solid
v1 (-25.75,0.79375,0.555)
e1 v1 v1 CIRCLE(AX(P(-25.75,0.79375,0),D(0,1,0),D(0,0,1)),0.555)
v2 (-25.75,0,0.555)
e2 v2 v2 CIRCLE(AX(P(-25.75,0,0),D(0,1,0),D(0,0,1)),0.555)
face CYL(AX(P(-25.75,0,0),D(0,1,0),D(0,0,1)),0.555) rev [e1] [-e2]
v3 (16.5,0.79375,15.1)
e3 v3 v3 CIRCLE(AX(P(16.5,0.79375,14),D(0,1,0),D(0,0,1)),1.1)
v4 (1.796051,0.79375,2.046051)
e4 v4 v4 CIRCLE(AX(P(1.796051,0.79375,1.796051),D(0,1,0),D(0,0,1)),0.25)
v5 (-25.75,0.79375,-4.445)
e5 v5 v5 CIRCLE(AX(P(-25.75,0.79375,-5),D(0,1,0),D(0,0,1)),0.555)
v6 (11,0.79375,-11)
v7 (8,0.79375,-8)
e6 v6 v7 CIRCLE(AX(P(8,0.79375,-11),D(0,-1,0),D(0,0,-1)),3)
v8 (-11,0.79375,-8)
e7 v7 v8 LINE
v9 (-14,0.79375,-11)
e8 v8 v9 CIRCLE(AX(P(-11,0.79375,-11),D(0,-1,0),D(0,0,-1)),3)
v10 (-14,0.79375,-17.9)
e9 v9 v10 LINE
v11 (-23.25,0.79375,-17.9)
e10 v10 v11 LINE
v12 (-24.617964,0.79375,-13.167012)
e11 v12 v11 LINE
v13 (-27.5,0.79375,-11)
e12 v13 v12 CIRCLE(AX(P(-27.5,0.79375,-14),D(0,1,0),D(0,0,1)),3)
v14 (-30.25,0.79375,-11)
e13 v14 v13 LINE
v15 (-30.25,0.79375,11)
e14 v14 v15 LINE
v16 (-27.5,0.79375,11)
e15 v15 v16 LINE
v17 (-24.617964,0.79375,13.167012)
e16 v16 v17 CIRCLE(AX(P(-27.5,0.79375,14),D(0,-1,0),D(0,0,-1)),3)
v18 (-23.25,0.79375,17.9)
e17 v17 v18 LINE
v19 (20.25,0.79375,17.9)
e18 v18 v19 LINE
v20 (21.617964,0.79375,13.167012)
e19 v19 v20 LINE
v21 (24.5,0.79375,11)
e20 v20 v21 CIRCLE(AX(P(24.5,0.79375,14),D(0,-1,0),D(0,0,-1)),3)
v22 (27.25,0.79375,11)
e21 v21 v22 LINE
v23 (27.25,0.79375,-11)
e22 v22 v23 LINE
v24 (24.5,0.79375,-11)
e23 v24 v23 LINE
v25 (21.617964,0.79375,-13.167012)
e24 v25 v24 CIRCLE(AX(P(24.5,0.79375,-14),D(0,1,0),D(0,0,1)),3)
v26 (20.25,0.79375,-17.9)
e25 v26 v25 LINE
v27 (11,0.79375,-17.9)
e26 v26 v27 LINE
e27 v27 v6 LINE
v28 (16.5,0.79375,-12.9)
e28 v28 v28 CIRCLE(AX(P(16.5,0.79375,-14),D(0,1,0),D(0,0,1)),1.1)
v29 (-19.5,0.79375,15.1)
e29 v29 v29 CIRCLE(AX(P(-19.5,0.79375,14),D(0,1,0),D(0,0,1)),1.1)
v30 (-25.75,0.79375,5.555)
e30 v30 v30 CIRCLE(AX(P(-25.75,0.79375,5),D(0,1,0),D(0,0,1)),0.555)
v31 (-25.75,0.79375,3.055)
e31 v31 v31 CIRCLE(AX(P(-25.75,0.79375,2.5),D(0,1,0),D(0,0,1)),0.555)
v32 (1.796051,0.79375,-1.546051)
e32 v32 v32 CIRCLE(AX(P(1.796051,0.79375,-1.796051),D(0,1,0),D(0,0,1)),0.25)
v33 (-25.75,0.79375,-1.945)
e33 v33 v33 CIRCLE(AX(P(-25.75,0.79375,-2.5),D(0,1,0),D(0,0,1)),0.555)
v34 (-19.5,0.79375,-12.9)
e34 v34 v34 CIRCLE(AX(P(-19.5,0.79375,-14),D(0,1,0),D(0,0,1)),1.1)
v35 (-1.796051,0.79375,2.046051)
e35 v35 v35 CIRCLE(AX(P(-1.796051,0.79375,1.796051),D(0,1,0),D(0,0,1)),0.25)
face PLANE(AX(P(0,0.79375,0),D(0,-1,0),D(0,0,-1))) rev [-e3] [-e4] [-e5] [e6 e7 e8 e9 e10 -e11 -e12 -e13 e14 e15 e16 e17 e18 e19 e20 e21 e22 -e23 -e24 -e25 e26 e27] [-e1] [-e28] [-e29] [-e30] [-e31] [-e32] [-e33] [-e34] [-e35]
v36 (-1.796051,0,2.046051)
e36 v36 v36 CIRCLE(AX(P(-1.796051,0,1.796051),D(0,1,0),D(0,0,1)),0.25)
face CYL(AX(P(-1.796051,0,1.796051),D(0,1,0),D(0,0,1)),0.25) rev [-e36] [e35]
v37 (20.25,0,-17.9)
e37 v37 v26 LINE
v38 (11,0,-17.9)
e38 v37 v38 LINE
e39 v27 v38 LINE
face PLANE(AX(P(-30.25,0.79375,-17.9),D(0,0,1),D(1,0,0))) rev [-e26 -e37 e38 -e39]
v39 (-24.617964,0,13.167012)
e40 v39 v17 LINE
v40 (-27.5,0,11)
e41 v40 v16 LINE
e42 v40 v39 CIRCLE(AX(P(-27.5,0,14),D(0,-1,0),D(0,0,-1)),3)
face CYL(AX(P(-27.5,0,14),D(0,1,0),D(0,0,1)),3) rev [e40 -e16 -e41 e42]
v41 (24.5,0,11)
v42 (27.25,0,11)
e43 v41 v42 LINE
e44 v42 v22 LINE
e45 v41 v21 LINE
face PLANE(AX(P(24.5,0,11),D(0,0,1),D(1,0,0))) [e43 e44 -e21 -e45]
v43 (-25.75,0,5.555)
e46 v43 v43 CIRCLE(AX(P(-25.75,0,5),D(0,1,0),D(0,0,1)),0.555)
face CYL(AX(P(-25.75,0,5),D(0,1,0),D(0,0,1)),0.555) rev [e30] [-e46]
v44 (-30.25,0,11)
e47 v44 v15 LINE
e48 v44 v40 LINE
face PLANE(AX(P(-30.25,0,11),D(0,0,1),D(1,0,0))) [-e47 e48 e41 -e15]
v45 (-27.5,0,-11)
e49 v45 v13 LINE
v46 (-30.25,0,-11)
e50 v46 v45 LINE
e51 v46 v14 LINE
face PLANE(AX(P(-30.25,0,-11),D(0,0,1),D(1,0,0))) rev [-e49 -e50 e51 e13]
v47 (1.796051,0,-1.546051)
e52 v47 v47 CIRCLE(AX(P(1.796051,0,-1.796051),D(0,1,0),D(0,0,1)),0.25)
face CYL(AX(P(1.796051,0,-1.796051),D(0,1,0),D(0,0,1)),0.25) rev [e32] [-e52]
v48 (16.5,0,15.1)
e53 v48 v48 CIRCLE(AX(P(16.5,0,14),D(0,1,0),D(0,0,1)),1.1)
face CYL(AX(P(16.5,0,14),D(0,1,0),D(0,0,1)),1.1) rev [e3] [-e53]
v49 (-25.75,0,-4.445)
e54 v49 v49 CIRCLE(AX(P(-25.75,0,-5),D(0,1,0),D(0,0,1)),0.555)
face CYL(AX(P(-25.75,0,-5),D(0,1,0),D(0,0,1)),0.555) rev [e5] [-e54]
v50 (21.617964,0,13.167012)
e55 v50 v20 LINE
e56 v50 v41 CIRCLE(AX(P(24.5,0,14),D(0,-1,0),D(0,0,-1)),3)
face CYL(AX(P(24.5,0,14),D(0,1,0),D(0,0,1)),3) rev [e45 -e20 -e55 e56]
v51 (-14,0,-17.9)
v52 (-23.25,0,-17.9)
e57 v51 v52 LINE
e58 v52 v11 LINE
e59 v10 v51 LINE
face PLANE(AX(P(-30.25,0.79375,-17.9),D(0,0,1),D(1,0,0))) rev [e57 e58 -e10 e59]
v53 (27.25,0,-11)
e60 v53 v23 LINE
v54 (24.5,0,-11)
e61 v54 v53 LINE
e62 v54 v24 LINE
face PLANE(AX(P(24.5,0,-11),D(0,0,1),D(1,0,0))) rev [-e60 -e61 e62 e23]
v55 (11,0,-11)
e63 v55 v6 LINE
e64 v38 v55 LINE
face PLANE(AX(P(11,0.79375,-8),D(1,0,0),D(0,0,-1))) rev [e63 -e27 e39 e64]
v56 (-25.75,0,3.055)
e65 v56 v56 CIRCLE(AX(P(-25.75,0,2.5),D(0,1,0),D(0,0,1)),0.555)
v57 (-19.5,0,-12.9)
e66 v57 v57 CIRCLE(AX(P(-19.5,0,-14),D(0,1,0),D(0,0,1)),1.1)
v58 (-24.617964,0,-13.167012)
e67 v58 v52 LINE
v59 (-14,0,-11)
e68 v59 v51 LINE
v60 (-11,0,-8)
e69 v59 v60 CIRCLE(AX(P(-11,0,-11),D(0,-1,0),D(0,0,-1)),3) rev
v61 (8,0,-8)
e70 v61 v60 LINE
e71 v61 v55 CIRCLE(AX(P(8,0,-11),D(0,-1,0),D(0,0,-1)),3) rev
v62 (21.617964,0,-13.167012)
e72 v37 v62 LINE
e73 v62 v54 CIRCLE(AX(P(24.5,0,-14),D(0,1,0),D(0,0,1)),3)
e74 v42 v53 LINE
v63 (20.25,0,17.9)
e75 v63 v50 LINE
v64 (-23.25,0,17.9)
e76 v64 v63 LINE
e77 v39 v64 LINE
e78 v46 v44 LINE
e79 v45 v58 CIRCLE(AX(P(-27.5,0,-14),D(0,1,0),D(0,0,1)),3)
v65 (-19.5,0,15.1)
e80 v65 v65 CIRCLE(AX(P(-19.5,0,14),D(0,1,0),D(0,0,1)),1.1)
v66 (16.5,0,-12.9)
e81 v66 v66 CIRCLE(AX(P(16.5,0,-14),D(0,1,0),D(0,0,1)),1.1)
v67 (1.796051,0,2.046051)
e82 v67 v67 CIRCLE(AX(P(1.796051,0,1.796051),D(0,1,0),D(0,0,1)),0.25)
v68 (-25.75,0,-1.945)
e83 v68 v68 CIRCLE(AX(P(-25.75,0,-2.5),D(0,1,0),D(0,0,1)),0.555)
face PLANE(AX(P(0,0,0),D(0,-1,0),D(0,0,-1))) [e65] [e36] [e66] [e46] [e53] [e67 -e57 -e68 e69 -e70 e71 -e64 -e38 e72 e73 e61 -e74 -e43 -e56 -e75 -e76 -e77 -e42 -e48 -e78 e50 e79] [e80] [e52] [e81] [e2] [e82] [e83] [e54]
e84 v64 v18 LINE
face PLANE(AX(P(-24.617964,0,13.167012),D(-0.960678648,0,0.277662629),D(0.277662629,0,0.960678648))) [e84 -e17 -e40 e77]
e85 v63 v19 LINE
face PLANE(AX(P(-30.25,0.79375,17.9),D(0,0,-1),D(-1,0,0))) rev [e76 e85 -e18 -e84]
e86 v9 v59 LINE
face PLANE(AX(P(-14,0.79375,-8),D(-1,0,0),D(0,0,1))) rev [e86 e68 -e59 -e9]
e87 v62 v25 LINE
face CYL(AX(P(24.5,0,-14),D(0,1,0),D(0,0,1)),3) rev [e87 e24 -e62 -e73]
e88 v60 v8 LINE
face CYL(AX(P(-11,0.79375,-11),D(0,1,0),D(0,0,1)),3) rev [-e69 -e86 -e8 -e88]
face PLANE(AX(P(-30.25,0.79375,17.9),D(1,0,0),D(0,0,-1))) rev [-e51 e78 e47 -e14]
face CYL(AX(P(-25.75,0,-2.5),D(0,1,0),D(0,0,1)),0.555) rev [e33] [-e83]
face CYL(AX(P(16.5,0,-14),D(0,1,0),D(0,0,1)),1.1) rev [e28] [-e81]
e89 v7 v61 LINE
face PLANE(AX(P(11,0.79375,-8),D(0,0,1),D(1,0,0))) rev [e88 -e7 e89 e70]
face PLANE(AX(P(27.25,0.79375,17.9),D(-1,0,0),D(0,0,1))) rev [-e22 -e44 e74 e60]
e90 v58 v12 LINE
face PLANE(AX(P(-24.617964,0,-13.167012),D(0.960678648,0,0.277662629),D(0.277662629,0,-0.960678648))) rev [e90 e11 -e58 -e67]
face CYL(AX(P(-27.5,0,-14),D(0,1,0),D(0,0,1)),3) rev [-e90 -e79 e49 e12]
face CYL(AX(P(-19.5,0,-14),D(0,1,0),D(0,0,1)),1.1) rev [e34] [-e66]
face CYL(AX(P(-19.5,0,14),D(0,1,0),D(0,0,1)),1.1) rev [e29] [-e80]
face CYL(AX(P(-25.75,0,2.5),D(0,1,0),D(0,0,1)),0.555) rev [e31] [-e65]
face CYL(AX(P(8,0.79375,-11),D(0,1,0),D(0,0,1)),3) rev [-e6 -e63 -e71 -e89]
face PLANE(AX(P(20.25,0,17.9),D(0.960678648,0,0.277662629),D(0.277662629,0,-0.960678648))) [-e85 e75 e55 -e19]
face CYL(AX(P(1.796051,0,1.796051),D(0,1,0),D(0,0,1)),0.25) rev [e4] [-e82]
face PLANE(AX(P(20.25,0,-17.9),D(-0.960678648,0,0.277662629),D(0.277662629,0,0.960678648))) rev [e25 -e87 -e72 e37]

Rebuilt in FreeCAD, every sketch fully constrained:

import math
import FreeCAD as App
import Part
import Sketcher

V = App.Vector
Q = App.Units.Quantity


def edges_at(feature, points):
    """Names of the edges that pass closest to the given points."""
    edges = feature.Shape.Edges
    near = lambda p: min(range(len(edges)), key=lambda i: edges[i].distToShape(Part.Vertex(*p))[0])
    return sorted({f"Edge{near(p) + 1}" for p in points})

doc = App.newDocument("Part")
body = doc.addObject("PartDesign::Body", "Body")

sketch1 = body.newObject("Sketcher::SketchObject", "Sketch")
sketch1.AttachmentSupport = (doc.getObject("XZ_Plane"), [""])
sketch1.MapMode = "FlatFace"
sketch1.addGeometry([
    Part.LineSegment(V(-30, -18, 0), V(-30, 18, 0)),
    Part.LineSegment(V(-30, 18, 0), V(27, 18, 0)),
    Part.LineSegment(V(27, 18, 0), V(27, -18, 0)),
    Part.LineSegment(V(27, -18, 0), V(-30, -18, 0)),
], False)
sketch1.addConstraint([
    Sketcher.Constraint("Coincident", 0, 2, 1, 1),
    Sketcher.Constraint("Coincident", 1, 2, 2, 1),
    Sketcher.Constraint("Coincident", 2, 2, 3, 1),
    Sketcher.Constraint("Coincident", 3, 2, 0, 1),
    Sketcher.Constraint("Vertical", 0),
    Sketcher.Constraint("Horizontal", 1),
    Sketcher.Constraint("Vertical", 2),
    Sketcher.Constraint("Horizontal", 3),
    Sketcher.Constraint("DistanceX", 1, 1, 1, 2, Q("57.5 mm")),
    Sketcher.Constraint("DistanceY", 0, 1, 0, 2, Q("35.8 mm")),
    Sketcher.Constraint("DistanceY", -1, 1, 0, 2, Q("17.9 mm")),
    Sketcher.Constraint("DistanceX", 0, 2, -1, 1, Q("30.25 mm")),
])
pad1 = body.newObject("PartDesign::Pad", "Pad")
pad1.Profile = sketch1
pad1.Length = 0.79375
pad1.Reversed = True

sketch2 = body.newObject("Sketcher::SketchObject", "Sketch001")
sketch2.AttachmentSupport = (doc.getObject("XZ_Plane"), [""])
sketch2.MapMode = "FlatFace"
sketch2.AttachmentOffset = App.Placement(V(0, 0, -0.79375), App.Rotation())
sketch2.addGeometry([
    Part.Circle(V(1.8, 1.8, 0), V(0, 0, 1), 0.25),
    Part.Circle(V(1.8, -1.8, 0), V(0, 0, 1), 0.25),
    Part.Circle(V(-1.8, 1.8, 0), V(0, 0, 1), 0.25),
], False)
sketch2.addConstraint([
    Sketcher.Constraint("Equal", 0, 1),
    Sketcher.Constraint("Equal", 1, 2),
    Sketcher.Constraint("Symmetric", 1, 3, 2, 3, -1, 1),
    Sketcher.Constraint("Symmetric", 0, 3, 2, 3, -2),
    Sketcher.Constraint("Diameter", 0, Q("0.5 mm")),
    Sketcher.Constraint("DistanceX", -1, 1, 0, 3, Q("1.796051 mm")),
    Sketcher.Constraint("DistanceY", -1, 1, 0, 3, Q("1.796051 mm")),
])
pocket1 = body.newObject("PartDesign::Pocket", "Pocket")
pocket1.Profile = sketch2
pocket1.Type = "ThroughAll"
pocket1.Reversed = True

sketch3 = body.newObject("Sketcher::SketchObject", "Sketch002")
sketch3.AttachmentSupport = (doc.getObject("XZ_Plane"), [""])
sketch3.MapMode = "FlatFace"
sketch3.AttachmentOffset = App.Placement(V(0, 0, -0.79375), App.Rotation())
sketch3.addGeometry(Part.Circle(V(-25.8, -5, 0), V(0, 0, 1), 0.6), False)
sketch3.addConstraint([
    Sketcher.Constraint("Diameter", 0, Q("1.11 mm")),
    Sketcher.Constraint("DistanceY", 0, 3, -1, 1, Q("5 mm")),
    Sketcher.Constraint("DistanceX", 0, 3, -1, 1, Q("25.75 mm")),
])
pocket2 = body.newObject("PartDesign::Pocket", "Pocket001")
pocket2.Profile = sketch3
pocket2.Type = "ThroughAll"
pocket2.Reversed = True
doc.recompute()

linearpattern = body.newObject("PartDesign::LinearPattern", "LinearPattern")
linearpattern.Originals = [pocket2]
linearpattern.Direction = (doc.getObject("Z_Axis"), [""])
linearpattern.Mode = "offset"
linearpattern.Offset = 2.5
linearpattern.Occurrences = 5
body.Tip = linearpattern

sketch4 = body.newObject("Sketcher::SketchObject", "Sketch003")
sketch4.AttachmentSupport = (doc.getObject("XZ_Plane"), [""])
sketch4.MapMode = "FlatFace"
sketch4.addGeometry([
    Part.LineSegment(V(-14, -8, 0), V(-14, -18, 0)),
    Part.LineSegment(V(-14, -18, 0), V(11, -18, 0)),
    Part.LineSegment(V(11, -18, 0), V(11, -8, 0)),
    Part.LineSegment(V(11, -8, 0), V(-14, -8, 0)),
], False)
sketch4.addConstraint([
    Sketcher.Constraint("Coincident", 0, 2, 1, 1),
    Sketcher.Constraint("Coincident", 1, 2, 2, 1),
    Sketcher.Constraint("Coincident", 2, 2, 3, 1),
    Sketcher.Constraint("Coincident", 3, 2, 0, 1),
    Sketcher.Constraint("Vertical", 0),
    Sketcher.Constraint("Horizontal", 1),
    Sketcher.Constraint("Vertical", 2),
    Sketcher.Constraint("Horizontal", 3),
    Sketcher.Constraint("DistanceX", 1, 1, 1, 2, Q("25 mm")),
    Sketcher.Constraint("DistanceY", 0, 2, 0, 1, Q("9.9 mm")),
    Sketcher.Constraint("DistanceX", 0, 2, -1, 1, Q("14 mm")),
    Sketcher.Constraint("DistanceY", 2, 2, -1, 1, Q("8 mm")),
])
pocket3 = body.newObject("PartDesign::Pocket", "Pocket002")
pocket3.Profile = sketch4
pocket3.Type = "ThroughAll"
doc.recompute()

fillet = body.newObject("PartDesign::Fillet", "Fillet")
fillet.Base = (pocket3, edges_at(pocket3, [(-14, 0.397, -8), (11, 0.397, -8)]))
fillet.Radius = 3

sketch5 = body.newObject("Sketcher::SketchObject", "Sketch004")
sketch5.AttachmentSupport = (doc.getObject("XZ_Plane"), [""])
sketch5.MapMode = "FlatFace"
sketch5.AttachmentOffset = App.Placement(V(0, 0, -0.79375), App.Rotation())
sketch5.addGeometry([
    Part.LineSegment(V(-30.2, -11, 0), V(-27.5, -11, 0)),
    Part.ArcOfCircle(Part.Circle(V(-27.5, -14, 0), V(0, 0, 1), 3), math.radians(16), math.radians(90)),
    Part.LineSegment(V(-24.6, -13.2, 0), V(-23.2, -17.9, 0)),
    Part.LineSegment(V(-23.2, -17.9, 0), V(-30.2, -17.9, 0)),
    Part.LineSegment(V(-30.2, -17.9, 0), V(-30.2, -11, 0)),
    Part.LineSegment(V(20.2, -17.9, 0), V(21.6, -13.2, 0)),
    Part.ArcOfCircle(Part.Circle(V(24.5, -14, 0), V(0, 0, 1), 3), math.radians(90), math.radians(164)),
    Part.LineSegment(V(24.5, -11, 0), V(27.2, -11, 0)),
    Part.LineSegment(V(27.2, -11, 0), V(27.2, -17.9, 0)),
    Part.LineSegment(V(27.2, -17.9, 0), V(20.2, -17.9, 0)),
], False)
sketch5.addConstraint([
    Sketcher.Constraint("Tangent", 0, 2, 1, 2),
    Sketcher.Constraint("Tangent", 1, 1, 2, 1),
    Sketcher.Constraint("Coincident", 2, 2, 3, 1),
    Sketcher.Constraint("Coincident", 3, 2, 4, 1),
    Sketcher.Constraint("Coincident", 4, 2, 0, 1),
    Sketcher.Constraint("Tangent", 5, 2, 6, 2),
    Sketcher.Constraint("Tangent", 6, 1, 7, 1),
    Sketcher.Constraint("Coincident", 7, 2, 8, 1),
    Sketcher.Constraint("Coincident", 8, 2, 9, 1),
    Sketcher.Constraint("Coincident", 9, 2, 5, 1),
    Sketcher.Constraint("Horizontal", 0),
    Sketcher.Constraint("Horizontal", 3),
    Sketcher.Constraint("Vertical", 4),
    Sketcher.Constraint("Horizontal", 7),
    Sketcher.Constraint("Vertical", 8),
    Sketcher.Constraint("Horizontal", 9),
    Sketcher.Constraint("Equal", 1, 6),
    Sketcher.Constraint("Horizontal", 1, 3, 6, 3),
    Sketcher.Constraint("Horizontal", 1, 1, 5, 2),
    Sketcher.Constraint("Horizontal", 3, 2, 8, 2),
    Sketcher.Constraint("Equal", 0, 7),
    Sketcher.Constraint("Radius", 1, Q("3 mm")),
    Sketcher.Constraint("DistanceX", 3, 2, 3, 1, Q("7 mm")),
    Sketcher.Constraint("DistanceY", 4, 1, 4, 2, Q("6.9 mm")),
    Sketcher.Constraint("DistanceY", 1, 3, -1, 1, Q("14 mm")),
    Sketcher.Constraint("DistanceX", 1, 3, 6, 3, Q("52 mm")),
    Sketcher.Constraint("DistanceX", 0, 1, 0, 2, Q("2.75 mm")),
    Sketcher.Constraint("DistanceX", 1, 3, -1, 1, Q("27.5 mm")),
])
pocket4 = body.newObject("PartDesign::Pocket", "Pocket003")
pocket4.Profile = sketch5
pocket4.Type = "ThroughAll"
pocket4.Reversed = True
doc.recompute()

mirrored = body.newObject("PartDesign::Mirrored", "Mirrored")
mirrored.Originals = [pocket4]
mirrored.MirrorPlane = (doc.getObject("XY_Plane"), [""])
body.Tip = mirrored

sketch6 = body.newObject("Sketcher::SketchObject", "Sketch005")
sketch6.AttachmentSupport = (doc.getObject("XZ_Plane"), [""])
sketch6.MapMode = "FlatFace"
sketch6.AttachmentOffset = App.Placement(V(0, 0, -0.79375), App.Rotation())
sketch6.addGeometry([
    Part.Circle(V(-19.5, -14, 0), V(0, 0, 1), 1.1),
    Part.Circle(V(-19.5, 14, 0), V(0, 0, 1), 1.1),
    Part.Circle(V(16.5, 14, 0), V(0, 0, 1), 1.1),
    Part.Circle(V(16.5, -14, 0), V(0, 0, 1), 1.1),
], False)
sketch6.addConstraint([
    Sketcher.Constraint("Equal", 0, 1),
    Sketcher.Constraint("Equal", 1, 2),
    Sketcher.Constraint("Equal", 2, 3),
    Sketcher.Constraint("Symmetric", 0, 3, 1, 3, -1),
    Sketcher.Constraint("Symmetric", 2, 3, 3, 3, -1),
    Sketcher.Constraint("Horizontal", 1, 3, 2, 3),
    Sketcher.Constraint("Diameter", 0, Q("2.2 mm")),
    Sketcher.Constraint("DistanceY", 0, 3, -1, 1, Q("14 mm")),
    Sketcher.Constraint("DistanceX", 1, 3, 2, 3, Q("36 mm")),
    Sketcher.Constraint("DistanceX", 0, 3, -1, 1, Q("19.5 mm")),
])
pocket5 = body.newObject("PartDesign::Pocket", "Pocket004")
pocket5.Profile = sketch6
pocket5.Type = "ThroughAll"
pocket5.Reversed = True

doc.recompute()
